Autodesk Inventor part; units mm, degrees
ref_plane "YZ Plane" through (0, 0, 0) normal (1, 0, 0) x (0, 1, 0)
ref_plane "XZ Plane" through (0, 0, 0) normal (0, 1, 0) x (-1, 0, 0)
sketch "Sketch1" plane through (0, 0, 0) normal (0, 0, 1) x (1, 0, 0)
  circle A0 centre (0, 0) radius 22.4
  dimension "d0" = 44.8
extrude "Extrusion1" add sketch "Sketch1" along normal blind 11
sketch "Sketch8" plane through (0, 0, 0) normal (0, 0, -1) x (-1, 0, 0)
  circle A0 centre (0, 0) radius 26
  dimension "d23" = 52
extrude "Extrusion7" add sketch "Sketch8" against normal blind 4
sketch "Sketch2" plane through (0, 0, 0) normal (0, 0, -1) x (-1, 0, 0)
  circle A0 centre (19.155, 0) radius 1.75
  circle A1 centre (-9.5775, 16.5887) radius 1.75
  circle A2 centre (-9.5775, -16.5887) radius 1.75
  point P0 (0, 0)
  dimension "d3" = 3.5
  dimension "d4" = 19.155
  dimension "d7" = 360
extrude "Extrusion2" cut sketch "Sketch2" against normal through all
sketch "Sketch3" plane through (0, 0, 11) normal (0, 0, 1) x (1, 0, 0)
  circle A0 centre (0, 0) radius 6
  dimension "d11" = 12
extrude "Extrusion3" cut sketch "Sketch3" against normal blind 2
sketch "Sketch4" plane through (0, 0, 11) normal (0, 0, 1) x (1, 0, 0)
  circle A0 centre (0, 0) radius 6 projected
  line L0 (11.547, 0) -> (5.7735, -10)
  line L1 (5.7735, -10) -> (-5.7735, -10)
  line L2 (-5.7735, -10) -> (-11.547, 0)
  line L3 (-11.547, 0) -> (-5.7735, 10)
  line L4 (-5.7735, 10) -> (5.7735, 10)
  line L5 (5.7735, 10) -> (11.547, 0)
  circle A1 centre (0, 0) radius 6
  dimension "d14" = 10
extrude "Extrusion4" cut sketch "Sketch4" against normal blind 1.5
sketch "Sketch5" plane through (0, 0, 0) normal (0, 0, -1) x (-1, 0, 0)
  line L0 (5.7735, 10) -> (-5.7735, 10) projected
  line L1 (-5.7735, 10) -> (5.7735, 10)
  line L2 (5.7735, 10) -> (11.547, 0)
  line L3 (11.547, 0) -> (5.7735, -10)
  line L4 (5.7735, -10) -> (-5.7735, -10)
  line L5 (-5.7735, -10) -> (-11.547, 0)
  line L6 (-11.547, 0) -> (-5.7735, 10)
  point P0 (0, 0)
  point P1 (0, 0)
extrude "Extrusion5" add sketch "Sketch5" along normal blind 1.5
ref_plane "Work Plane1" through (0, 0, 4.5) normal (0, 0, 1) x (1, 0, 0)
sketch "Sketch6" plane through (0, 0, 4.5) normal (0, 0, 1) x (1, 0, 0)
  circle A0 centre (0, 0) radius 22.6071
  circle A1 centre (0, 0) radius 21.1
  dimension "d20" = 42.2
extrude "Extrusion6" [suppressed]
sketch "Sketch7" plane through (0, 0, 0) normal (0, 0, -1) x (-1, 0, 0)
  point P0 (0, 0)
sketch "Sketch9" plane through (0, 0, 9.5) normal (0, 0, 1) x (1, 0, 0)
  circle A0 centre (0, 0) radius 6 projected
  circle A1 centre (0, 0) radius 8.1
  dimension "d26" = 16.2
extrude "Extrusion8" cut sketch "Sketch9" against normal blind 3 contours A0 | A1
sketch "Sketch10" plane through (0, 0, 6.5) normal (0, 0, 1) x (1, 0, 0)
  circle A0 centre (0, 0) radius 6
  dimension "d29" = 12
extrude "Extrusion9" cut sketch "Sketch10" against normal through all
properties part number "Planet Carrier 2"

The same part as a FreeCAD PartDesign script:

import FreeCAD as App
import Part
import Sketcher

V = App.Vector
Q = App.Units.Quantity


def add_polygon(sketch, points):
    """Adds a closed chain of lines whose ends are joined by coincident constraints."""
    first, n = sketch.GeometryCount, len(points)
    for a, b in zip(points, points[1:] + points[:1]):
        sketch.addGeometry(Part.LineSegment(App.Vector(*a, 0), App.Vector(*b, 0)), False)
    for i in range(n):
        sketch.addConstraint(Sketcher.Constraint("Coincident", first + i, 2, first + (i + 1) % n, 1))

doc = App.newDocument("Part")
body = doc.addObject("PartDesign::Body", "Body")

# Sketch on XY plane
sketch1 = doc.addObject("Sketcher::SketchObject", "Sketch")
body.addObject(sketch1)
sketch1.AttachmentSupport = (doc.XY_Plane, [""])
sketch1.MapMode = "FlatFace"
sketch1.addGeometry(Part.Circle(V(0, 0, 0), V(0, 0, 1), 22.4), False)
sketch1.addConstraint([
    Sketcher.Constraint("Coincident", 0, 3, -1, 1),
    Sketcher.Constraint("Diameter", 0, Q("44.8 mm")),
])
pad1 = doc.addObject("PartDesign::Pad", "Pad")
body.addObject(pad1)
pad1.Profile = sketch1
pad1.Length = 11

# Sketch on XY plane
sketch2 = doc.addObject("Sketcher::SketchObject", "Sketch001")
body.addObject(sketch2)
sketch2.AttachmentSupport = (doc.XY_Plane, [""])
sketch2.MapMode = "FlatFace"
sketch2.addGeometry(Part.Circle(V(0, 0, 0), V(0, 0, 1), 26), False)
sketch2.addConstraint([
    Sketcher.Constraint("Coincident", 0, 3, -1, 1),
    Sketcher.Constraint("Diameter", 0, Q("52 mm")),
])
pad2 = doc.addObject("PartDesign::Pad", "Pad001")
body.addObject(pad2)
pad2.Profile = sketch2
pad2.Length = 4

# Sketch on XY plane
sketch3 = doc.addObject("Sketcher::SketchObject", "Sketch002")
body.addObject(sketch3)
sketch3.AttachmentSupport = (doc.XY_Plane, [""])
sketch3.MapMode = "FlatFace"
sketch3.addGeometry([
    Part.Circle(V(-19.155, 0, 0), V(0, 0, 1), 1.75),
    Part.Circle(V(9.5775, 16.5887, 0), V(0, 0, 1), 1.75),
    Part.Circle(V(9.5775, -16.5887, 0), V(0, 0, 1), 1.75),
], False)
sketch3.addConstraint([
    Sketcher.Constraint("Equal", 0, 1),
    Sketcher.Constraint("Equal", 1, 2),
    Sketcher.Constraint("Symmetric", 1, 3, 2, 3, -1),
    Sketcher.Constraint("PointOnObject", 0, 3, -1),
    Sketcher.Constraint("Diameter", 0, Q("3.5 mm")),
    Sketcher.Constraint("DistanceX", 0, 3, -1, 1, Q("19.155 mm")),
    Sketcher.Constraint("DistanceX", -1, 1, 1, 3, Q("9.5775 mm")),
    Sketcher.Constraint("DistanceY", -1, 1, 1, 3, Q("16.5887 mm")),
])
pocket1 = doc.addObject("PartDesign::Pocket", "Pocket")
body.addObject(pocket1)
pocket1.Profile = sketch3
pocket1.Type = "ThroughAll"
pocket1.Reversed = True

# Sketch on XY plane
sketch4 = doc.addObject("Sketcher::SketchObject", "Sketch003")
body.addObject(sketch4)
sketch4.AttachmentSupport = (doc.XY_Plane, [""])
sketch4.MapMode = "FlatFace"
sketch4.AttachmentOffset = App.Placement(V(0, 0, 11), App.Rotation())
sketch4.addGeometry(Part.Circle(V(0, 0, 0), V(0, 0, 1), 6), False)
sketch4.addConstraint([
    Sketcher.Constraint("Coincident", 0, 3, -1, 1),
    Sketcher.Constraint("Diameter", 0, Q("12 mm")),
])
pocket2 = doc.addObject("PartDesign::Pocket", "Pocket001")
body.addObject(pocket2)
pocket2.Profile = sketch4
pocket2.Length = 2

# Sketch on XY plane
sketch5 = doc.addObject("Sketcher::SketchObject", "Sketch004")
body.addObject(sketch5)
sketch5.AttachmentSupport = (doc.XY_Plane, [""])
sketch5.MapMode = "FlatFace"
sketch5.AttachmentOffset = App.Placement(V(0, 0, 11), App.Rotation())
add_polygon(sketch5, [(5.7735, -10), (11.547, 0), (5.7735, 10), (-5.7735, 10), (-11.547, 0), (-5.7735, -10)])  # lines 0-5
sketch5.addGeometry(Part.Circle(V(0, 0, 0), V(0, 0, 1), 6), False)  # 6
sketch5.addConstraint([
    Sketcher.Constraint("Horizontal", 2),
    Sketcher.Constraint("Horizontal", 5),
    Sketcher.Constraint("Coincident", 6, 3, -1, 1),
    Sketcher.Constraint("Symmetric", 0, 2, 3, 2, -1, 1),
    Sketcher.Constraint("Symmetric", 1, 2, 4, 2, -1, 1),
    Sketcher.Constraint("PointOnObject", 0, 2, -1),
    Sketcher.Constraint("Parallel", 0, 3),
    Sketcher.Constraint("Vertical", 2, 2, 4, 2),
    Sketcher.Constraint("Diameter", 6, Q("12 mm")),
    Sketcher.Constraint("DistanceY", -1, 1, 1, 2, Q("10 mm")),
    Sketcher.Constraint("Angle", 0, Q("60 deg")),
    Sketcher.Constraint("DistanceX", 2, 2, 2, 1, Q("11.547 mm")),
])
pocket3 = doc.addObject("PartDesign::Pocket", "Pocket002")
body.addObject(pocket3)
pocket3.Profile = sketch5
pocket3.Length = 1.5

# Sketch on XY plane
sketch6 = doc.addObject("Sketcher::SketchObject", "Sketch005")
body.addObject(sketch6)
sketch6.AttachmentSupport = (doc.XY_Plane, [""])
sketch6.MapMode = "FlatFace"
add_polygon(sketch6, [(-11.547, 0), (-5.7735, 10), (5.7735, 10), (11.547, 0), (5.7735, -10), (-5.7735, -10)])  # lines 0-5
sketch6.addConstraint([
    Sketcher.Constraint("Horizontal", 1),
    Sketcher.Constraint("Horizontal", 4),
    Sketcher.Constraint("Symmetric", 0, 2, 3, 2, -1, 1),
    Sketcher.Constraint("Symmetric", 2, 2, 5, 2, -1, 1),
    Sketcher.Constraint("PointOnObject", 2, 2, -1),
    Sketcher.Constraint("Parallel", 2, 5),
    Sketcher.Constraint("Vertical", 1, 2, 3, 2),
    Sketcher.Constraint("Angle", 0, Q("60 deg")),
    Sketcher.Constraint("DistanceY", -1, 1, 0, 2, Q("10 mm")),
    Sketcher.Constraint("DistanceX", 1, 1, 1, 2, Q("11.547 mm")),
])
pad3 = doc.addObject("PartDesign::Pad", "Pad002")
body.addObject(pad3)
pad3.Profile = sketch6
pad3.Length = 1.5
pad3.Reversed = True

# Sketch on XY plane
sketch7 = doc.addObject("Sketcher::SketchObject", "Sketch006")
body.addObject(sketch7)
sketch7.AttachmentSupport = (doc.XY_Plane, [""])
sketch7.MapMode = "FlatFace"
sketch7.AttachmentOffset = App.Placement(V(0, 0, 9.5), App.Rotation())
sketch7.addGeometry(Part.Circle(V(0, 0, 0), V(0, 0, 1), 8.1), False)
sketch7.addConstraint([
    Sketcher.Constraint("Coincident", 0, 3, -1, 1),
    Sketcher.Constraint("Diameter", 0, Q("16.2 mm")),
])
pocket4 = doc.addObject("PartDesign::Pocket", "Pocket003")
body.addObject(pocket4)
pocket4.Profile = sketch7
pocket4.Length = 3

# Sketch on XY plane
sketch8 = doc.addObject("Sketcher::SketchObject", "Sketch007")
body.addObject(sketch8)
sketch8.AttachmentSupport = (doc.XY_Plane, [""])
sketch8.MapMode = "FlatFace"
sketch8.AttachmentOffset = App.Placement(V(0, 0, 6.5), App.Rotation())
sketch8.addGeometry(Part.Circle(V(0, 0, 0), V(0, 0, 1), 6), False)
sketch8.addConstraint([
    Sketcher.Constraint("Coincident", 0, 3, -1, 1),
    Sketcher.Constraint("Diameter", 0, Q("12 mm")),
])
pocket5 = doc.addObject("PartDesign::Pocket", "Pocket004")
body.addObject(pocket5)
pocket5.Profile = sketch8
pocket5.Type = "ThroughAll"

doc.recompute()
